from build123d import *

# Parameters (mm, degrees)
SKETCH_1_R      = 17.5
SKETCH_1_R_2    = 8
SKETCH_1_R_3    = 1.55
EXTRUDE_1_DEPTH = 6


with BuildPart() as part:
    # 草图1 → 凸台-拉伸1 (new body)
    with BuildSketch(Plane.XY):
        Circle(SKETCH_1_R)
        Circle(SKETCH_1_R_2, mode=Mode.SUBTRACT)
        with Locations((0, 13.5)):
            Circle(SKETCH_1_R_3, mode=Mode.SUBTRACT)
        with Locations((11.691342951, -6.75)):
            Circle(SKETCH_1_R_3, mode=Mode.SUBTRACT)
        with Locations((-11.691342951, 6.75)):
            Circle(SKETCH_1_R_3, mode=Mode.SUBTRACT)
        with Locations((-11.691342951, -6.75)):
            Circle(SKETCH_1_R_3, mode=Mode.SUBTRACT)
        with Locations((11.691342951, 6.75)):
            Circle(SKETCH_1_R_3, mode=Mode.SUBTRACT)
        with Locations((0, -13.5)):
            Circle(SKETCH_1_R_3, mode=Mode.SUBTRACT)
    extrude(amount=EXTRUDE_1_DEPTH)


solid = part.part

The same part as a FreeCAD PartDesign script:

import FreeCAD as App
import Part
import Sketcher
from FreeCAD import Vector

doc = App.newDocument("Part")
body = doc.addObject("PartDesign::Body", "Body")

sketch1 = body.newObject("Sketcher::SketchObject", "Sketch")
sketch1.AttachmentSupport = (doc.getObject("XY_Plane"), [""])
sketch1.MapMode = "FlatFace"
sketch1.addGeometry([
    Part.Circle(Vector(0, 0, 0), Vector(0, 0, 1), 17.5),
    Part.Circle(Vector(-11.691343, -6.75, 0), Vector(0, 0, 1), 1.55),
    Part.Circle(Vector(0, -13.5, 0), Vector(0, 0, 1), 1.55),
    Part.Circle(Vector(0, 0, 0), Vector(0, 0, 1), 8),
    Part.Circle(Vector(11.691343, -6.75, 0), Vector(0, 0, 1), 1.55),
    Part.Circle(Vector(-11.691343, 6.75, 0), Vector(0, 0, 1), 1.55),
    Part.Circle(Vector(11.691343, 6.75, 0), Vector(0, 0, 1), 1.55),
    Part.Circle(Vector(0, 13.5, 0), Vector(0, 0, 1), 1.55),
], False)
sketch1.addConstraint([
    Sketcher.Constraint("Coincident", 0, 3, -1, 1),
    Sketcher.Constraint("Coincident", 3, 3, -1, 1),
    Sketcher.Constraint("Equal", 1, 2),
    Sketcher.Constraint("Equal", 2, 4),
    Sketcher.Constraint("Equal", 4, 5),
    Sketcher.Constraint("Equal", 5, 6),
    Sketcher.Constraint("Equal", 6, 7),
    Sketcher.Constraint("Symmetric", 4, 3, 5, 3, -1, 1),
    Sketcher.Constraint("Symmetric", 1, 3, 6, 3, -1, 1),
    Sketcher.Constraint("Symmetric", 2, 3, 7, 3, -1, 1),
    Sketcher.Constraint("Symmetric", 1, 3, 4, 3, -2),
    Sketcher.Constraint("PointOnObject", 2, 3, -2),
    Sketcher.Constraint("Diameter", 0, 35.0),
    Sketcher.Constraint("Diameter", 3, 16.0),
    Sketcher.Constraint("Diameter", 1, 3.1),
    Sketcher.Constraint("DistanceY", 2, 3, -1, 1, 13.5),
    Sketcher.Constraint("DistanceY", 1, 3, 5, 3, 13.5),
    Sketcher.Constraint("DistanceX", 1, 3, -1, 1, 11.691343),
])
pad1 = body.newObject("PartDesign::Pad", "Pad")
pad1.Profile = sketch1
pad1.Length = 6

doc.recompute()
